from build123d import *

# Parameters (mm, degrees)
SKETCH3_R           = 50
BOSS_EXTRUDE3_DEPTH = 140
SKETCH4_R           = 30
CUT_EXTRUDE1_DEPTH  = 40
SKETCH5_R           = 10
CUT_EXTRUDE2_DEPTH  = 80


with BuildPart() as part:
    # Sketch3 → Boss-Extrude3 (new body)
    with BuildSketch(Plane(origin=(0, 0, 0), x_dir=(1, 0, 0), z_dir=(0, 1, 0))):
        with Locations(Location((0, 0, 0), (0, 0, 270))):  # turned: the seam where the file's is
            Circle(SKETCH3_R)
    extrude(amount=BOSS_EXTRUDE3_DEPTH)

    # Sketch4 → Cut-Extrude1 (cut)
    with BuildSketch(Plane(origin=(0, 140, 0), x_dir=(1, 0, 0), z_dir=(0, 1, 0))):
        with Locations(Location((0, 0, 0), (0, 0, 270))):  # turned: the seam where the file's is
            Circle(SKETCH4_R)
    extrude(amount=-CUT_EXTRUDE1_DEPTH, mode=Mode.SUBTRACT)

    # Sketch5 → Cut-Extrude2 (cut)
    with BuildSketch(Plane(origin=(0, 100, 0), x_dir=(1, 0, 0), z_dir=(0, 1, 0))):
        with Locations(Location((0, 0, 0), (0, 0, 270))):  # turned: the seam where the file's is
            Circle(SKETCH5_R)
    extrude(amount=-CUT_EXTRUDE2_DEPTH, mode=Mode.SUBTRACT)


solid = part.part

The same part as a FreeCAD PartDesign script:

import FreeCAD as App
import Part
import Sketcher

doc = App.newDocument("Part")
body = doc.addObject("PartDesign::Body", "Body")

# Sketch on XZ plane
sketch1 = body.newObject("Sketcher::SketchObject", "Sketch")
sketch1.AttachmentSupport = (doc.getObject("XZ_Plane"), [""])
sketch1.MapMode = "FlatFace"
sketch1.addGeometry(Part.Circle(App.Vector(0, 0, 0), App.Vector(0, 0, 1), 50), False)
sketch1.addConstraint(Sketcher.Constraint("Coincident", 0, 3, -1, 1))
sketch1.addConstraint(Sketcher.Constraint("Diameter", 0, 100.0))
pad1 = body.newObject("PartDesign::Pad", "Pad")
pad1.Profile = sketch1
pad1.Length = 140
pad1.Reversed = True

# Sketch on XZ plane
sketch2 = body.newObject("Sketcher::SketchObject", "Sketch001")
sketch2.AttachmentSupport = (doc.getObject("XZ_Plane"), [""])
sketch2.MapMode = "FlatFace"
sketch2.AttachmentOffset = App.Placement(App.Vector(0, 0, -140), App.Rotation())
sketch2.addGeometry(Part.Circle(App.Vector(0, 0, 0), App.Vector(0, 0, 1), 30), False)
sketch2.addConstraint(Sketcher.Constraint("Coincident", 0, 3, -1, 1))
sketch2.addConstraint(Sketcher.Constraint("Diameter", 0, 60.0))
pocket1 = body.newObject("PartDesign::Pocket", "Pocket")
pocket1.Profile = sketch2
pocket1.Length = 40
pocket1.Reversed = True

# Sketch on XZ plane
sketch3 = body.newObject("Sketcher::SketchObject", "Sketch002")
sketch3.AttachmentSupport = (doc.getObject("XZ_Plane"), [""])
sketch3.MapMode = "FlatFace"
sketch3.AttachmentOffset = App.Placement(App.Vector(0, 0, -100), App.Rotation())
sketch3.addGeometry(Part.Circle(App.Vector(0, 0, 0), App.Vector(0, 0, 1), 10), False)
sketch3.addConstraint(Sketcher.Constraint("Coincident", 0, 3, -1, 1))
sketch3.addConstraint(Sketcher.Constraint("Diameter", 0, 20.0))
pocket2 = body.newObject("PartDesign::Pocket", "Pocket001")
pocket2.Profile = sketch3
pocket2.Length = 80
pocket2.Reversed = True

doc.recompute()
